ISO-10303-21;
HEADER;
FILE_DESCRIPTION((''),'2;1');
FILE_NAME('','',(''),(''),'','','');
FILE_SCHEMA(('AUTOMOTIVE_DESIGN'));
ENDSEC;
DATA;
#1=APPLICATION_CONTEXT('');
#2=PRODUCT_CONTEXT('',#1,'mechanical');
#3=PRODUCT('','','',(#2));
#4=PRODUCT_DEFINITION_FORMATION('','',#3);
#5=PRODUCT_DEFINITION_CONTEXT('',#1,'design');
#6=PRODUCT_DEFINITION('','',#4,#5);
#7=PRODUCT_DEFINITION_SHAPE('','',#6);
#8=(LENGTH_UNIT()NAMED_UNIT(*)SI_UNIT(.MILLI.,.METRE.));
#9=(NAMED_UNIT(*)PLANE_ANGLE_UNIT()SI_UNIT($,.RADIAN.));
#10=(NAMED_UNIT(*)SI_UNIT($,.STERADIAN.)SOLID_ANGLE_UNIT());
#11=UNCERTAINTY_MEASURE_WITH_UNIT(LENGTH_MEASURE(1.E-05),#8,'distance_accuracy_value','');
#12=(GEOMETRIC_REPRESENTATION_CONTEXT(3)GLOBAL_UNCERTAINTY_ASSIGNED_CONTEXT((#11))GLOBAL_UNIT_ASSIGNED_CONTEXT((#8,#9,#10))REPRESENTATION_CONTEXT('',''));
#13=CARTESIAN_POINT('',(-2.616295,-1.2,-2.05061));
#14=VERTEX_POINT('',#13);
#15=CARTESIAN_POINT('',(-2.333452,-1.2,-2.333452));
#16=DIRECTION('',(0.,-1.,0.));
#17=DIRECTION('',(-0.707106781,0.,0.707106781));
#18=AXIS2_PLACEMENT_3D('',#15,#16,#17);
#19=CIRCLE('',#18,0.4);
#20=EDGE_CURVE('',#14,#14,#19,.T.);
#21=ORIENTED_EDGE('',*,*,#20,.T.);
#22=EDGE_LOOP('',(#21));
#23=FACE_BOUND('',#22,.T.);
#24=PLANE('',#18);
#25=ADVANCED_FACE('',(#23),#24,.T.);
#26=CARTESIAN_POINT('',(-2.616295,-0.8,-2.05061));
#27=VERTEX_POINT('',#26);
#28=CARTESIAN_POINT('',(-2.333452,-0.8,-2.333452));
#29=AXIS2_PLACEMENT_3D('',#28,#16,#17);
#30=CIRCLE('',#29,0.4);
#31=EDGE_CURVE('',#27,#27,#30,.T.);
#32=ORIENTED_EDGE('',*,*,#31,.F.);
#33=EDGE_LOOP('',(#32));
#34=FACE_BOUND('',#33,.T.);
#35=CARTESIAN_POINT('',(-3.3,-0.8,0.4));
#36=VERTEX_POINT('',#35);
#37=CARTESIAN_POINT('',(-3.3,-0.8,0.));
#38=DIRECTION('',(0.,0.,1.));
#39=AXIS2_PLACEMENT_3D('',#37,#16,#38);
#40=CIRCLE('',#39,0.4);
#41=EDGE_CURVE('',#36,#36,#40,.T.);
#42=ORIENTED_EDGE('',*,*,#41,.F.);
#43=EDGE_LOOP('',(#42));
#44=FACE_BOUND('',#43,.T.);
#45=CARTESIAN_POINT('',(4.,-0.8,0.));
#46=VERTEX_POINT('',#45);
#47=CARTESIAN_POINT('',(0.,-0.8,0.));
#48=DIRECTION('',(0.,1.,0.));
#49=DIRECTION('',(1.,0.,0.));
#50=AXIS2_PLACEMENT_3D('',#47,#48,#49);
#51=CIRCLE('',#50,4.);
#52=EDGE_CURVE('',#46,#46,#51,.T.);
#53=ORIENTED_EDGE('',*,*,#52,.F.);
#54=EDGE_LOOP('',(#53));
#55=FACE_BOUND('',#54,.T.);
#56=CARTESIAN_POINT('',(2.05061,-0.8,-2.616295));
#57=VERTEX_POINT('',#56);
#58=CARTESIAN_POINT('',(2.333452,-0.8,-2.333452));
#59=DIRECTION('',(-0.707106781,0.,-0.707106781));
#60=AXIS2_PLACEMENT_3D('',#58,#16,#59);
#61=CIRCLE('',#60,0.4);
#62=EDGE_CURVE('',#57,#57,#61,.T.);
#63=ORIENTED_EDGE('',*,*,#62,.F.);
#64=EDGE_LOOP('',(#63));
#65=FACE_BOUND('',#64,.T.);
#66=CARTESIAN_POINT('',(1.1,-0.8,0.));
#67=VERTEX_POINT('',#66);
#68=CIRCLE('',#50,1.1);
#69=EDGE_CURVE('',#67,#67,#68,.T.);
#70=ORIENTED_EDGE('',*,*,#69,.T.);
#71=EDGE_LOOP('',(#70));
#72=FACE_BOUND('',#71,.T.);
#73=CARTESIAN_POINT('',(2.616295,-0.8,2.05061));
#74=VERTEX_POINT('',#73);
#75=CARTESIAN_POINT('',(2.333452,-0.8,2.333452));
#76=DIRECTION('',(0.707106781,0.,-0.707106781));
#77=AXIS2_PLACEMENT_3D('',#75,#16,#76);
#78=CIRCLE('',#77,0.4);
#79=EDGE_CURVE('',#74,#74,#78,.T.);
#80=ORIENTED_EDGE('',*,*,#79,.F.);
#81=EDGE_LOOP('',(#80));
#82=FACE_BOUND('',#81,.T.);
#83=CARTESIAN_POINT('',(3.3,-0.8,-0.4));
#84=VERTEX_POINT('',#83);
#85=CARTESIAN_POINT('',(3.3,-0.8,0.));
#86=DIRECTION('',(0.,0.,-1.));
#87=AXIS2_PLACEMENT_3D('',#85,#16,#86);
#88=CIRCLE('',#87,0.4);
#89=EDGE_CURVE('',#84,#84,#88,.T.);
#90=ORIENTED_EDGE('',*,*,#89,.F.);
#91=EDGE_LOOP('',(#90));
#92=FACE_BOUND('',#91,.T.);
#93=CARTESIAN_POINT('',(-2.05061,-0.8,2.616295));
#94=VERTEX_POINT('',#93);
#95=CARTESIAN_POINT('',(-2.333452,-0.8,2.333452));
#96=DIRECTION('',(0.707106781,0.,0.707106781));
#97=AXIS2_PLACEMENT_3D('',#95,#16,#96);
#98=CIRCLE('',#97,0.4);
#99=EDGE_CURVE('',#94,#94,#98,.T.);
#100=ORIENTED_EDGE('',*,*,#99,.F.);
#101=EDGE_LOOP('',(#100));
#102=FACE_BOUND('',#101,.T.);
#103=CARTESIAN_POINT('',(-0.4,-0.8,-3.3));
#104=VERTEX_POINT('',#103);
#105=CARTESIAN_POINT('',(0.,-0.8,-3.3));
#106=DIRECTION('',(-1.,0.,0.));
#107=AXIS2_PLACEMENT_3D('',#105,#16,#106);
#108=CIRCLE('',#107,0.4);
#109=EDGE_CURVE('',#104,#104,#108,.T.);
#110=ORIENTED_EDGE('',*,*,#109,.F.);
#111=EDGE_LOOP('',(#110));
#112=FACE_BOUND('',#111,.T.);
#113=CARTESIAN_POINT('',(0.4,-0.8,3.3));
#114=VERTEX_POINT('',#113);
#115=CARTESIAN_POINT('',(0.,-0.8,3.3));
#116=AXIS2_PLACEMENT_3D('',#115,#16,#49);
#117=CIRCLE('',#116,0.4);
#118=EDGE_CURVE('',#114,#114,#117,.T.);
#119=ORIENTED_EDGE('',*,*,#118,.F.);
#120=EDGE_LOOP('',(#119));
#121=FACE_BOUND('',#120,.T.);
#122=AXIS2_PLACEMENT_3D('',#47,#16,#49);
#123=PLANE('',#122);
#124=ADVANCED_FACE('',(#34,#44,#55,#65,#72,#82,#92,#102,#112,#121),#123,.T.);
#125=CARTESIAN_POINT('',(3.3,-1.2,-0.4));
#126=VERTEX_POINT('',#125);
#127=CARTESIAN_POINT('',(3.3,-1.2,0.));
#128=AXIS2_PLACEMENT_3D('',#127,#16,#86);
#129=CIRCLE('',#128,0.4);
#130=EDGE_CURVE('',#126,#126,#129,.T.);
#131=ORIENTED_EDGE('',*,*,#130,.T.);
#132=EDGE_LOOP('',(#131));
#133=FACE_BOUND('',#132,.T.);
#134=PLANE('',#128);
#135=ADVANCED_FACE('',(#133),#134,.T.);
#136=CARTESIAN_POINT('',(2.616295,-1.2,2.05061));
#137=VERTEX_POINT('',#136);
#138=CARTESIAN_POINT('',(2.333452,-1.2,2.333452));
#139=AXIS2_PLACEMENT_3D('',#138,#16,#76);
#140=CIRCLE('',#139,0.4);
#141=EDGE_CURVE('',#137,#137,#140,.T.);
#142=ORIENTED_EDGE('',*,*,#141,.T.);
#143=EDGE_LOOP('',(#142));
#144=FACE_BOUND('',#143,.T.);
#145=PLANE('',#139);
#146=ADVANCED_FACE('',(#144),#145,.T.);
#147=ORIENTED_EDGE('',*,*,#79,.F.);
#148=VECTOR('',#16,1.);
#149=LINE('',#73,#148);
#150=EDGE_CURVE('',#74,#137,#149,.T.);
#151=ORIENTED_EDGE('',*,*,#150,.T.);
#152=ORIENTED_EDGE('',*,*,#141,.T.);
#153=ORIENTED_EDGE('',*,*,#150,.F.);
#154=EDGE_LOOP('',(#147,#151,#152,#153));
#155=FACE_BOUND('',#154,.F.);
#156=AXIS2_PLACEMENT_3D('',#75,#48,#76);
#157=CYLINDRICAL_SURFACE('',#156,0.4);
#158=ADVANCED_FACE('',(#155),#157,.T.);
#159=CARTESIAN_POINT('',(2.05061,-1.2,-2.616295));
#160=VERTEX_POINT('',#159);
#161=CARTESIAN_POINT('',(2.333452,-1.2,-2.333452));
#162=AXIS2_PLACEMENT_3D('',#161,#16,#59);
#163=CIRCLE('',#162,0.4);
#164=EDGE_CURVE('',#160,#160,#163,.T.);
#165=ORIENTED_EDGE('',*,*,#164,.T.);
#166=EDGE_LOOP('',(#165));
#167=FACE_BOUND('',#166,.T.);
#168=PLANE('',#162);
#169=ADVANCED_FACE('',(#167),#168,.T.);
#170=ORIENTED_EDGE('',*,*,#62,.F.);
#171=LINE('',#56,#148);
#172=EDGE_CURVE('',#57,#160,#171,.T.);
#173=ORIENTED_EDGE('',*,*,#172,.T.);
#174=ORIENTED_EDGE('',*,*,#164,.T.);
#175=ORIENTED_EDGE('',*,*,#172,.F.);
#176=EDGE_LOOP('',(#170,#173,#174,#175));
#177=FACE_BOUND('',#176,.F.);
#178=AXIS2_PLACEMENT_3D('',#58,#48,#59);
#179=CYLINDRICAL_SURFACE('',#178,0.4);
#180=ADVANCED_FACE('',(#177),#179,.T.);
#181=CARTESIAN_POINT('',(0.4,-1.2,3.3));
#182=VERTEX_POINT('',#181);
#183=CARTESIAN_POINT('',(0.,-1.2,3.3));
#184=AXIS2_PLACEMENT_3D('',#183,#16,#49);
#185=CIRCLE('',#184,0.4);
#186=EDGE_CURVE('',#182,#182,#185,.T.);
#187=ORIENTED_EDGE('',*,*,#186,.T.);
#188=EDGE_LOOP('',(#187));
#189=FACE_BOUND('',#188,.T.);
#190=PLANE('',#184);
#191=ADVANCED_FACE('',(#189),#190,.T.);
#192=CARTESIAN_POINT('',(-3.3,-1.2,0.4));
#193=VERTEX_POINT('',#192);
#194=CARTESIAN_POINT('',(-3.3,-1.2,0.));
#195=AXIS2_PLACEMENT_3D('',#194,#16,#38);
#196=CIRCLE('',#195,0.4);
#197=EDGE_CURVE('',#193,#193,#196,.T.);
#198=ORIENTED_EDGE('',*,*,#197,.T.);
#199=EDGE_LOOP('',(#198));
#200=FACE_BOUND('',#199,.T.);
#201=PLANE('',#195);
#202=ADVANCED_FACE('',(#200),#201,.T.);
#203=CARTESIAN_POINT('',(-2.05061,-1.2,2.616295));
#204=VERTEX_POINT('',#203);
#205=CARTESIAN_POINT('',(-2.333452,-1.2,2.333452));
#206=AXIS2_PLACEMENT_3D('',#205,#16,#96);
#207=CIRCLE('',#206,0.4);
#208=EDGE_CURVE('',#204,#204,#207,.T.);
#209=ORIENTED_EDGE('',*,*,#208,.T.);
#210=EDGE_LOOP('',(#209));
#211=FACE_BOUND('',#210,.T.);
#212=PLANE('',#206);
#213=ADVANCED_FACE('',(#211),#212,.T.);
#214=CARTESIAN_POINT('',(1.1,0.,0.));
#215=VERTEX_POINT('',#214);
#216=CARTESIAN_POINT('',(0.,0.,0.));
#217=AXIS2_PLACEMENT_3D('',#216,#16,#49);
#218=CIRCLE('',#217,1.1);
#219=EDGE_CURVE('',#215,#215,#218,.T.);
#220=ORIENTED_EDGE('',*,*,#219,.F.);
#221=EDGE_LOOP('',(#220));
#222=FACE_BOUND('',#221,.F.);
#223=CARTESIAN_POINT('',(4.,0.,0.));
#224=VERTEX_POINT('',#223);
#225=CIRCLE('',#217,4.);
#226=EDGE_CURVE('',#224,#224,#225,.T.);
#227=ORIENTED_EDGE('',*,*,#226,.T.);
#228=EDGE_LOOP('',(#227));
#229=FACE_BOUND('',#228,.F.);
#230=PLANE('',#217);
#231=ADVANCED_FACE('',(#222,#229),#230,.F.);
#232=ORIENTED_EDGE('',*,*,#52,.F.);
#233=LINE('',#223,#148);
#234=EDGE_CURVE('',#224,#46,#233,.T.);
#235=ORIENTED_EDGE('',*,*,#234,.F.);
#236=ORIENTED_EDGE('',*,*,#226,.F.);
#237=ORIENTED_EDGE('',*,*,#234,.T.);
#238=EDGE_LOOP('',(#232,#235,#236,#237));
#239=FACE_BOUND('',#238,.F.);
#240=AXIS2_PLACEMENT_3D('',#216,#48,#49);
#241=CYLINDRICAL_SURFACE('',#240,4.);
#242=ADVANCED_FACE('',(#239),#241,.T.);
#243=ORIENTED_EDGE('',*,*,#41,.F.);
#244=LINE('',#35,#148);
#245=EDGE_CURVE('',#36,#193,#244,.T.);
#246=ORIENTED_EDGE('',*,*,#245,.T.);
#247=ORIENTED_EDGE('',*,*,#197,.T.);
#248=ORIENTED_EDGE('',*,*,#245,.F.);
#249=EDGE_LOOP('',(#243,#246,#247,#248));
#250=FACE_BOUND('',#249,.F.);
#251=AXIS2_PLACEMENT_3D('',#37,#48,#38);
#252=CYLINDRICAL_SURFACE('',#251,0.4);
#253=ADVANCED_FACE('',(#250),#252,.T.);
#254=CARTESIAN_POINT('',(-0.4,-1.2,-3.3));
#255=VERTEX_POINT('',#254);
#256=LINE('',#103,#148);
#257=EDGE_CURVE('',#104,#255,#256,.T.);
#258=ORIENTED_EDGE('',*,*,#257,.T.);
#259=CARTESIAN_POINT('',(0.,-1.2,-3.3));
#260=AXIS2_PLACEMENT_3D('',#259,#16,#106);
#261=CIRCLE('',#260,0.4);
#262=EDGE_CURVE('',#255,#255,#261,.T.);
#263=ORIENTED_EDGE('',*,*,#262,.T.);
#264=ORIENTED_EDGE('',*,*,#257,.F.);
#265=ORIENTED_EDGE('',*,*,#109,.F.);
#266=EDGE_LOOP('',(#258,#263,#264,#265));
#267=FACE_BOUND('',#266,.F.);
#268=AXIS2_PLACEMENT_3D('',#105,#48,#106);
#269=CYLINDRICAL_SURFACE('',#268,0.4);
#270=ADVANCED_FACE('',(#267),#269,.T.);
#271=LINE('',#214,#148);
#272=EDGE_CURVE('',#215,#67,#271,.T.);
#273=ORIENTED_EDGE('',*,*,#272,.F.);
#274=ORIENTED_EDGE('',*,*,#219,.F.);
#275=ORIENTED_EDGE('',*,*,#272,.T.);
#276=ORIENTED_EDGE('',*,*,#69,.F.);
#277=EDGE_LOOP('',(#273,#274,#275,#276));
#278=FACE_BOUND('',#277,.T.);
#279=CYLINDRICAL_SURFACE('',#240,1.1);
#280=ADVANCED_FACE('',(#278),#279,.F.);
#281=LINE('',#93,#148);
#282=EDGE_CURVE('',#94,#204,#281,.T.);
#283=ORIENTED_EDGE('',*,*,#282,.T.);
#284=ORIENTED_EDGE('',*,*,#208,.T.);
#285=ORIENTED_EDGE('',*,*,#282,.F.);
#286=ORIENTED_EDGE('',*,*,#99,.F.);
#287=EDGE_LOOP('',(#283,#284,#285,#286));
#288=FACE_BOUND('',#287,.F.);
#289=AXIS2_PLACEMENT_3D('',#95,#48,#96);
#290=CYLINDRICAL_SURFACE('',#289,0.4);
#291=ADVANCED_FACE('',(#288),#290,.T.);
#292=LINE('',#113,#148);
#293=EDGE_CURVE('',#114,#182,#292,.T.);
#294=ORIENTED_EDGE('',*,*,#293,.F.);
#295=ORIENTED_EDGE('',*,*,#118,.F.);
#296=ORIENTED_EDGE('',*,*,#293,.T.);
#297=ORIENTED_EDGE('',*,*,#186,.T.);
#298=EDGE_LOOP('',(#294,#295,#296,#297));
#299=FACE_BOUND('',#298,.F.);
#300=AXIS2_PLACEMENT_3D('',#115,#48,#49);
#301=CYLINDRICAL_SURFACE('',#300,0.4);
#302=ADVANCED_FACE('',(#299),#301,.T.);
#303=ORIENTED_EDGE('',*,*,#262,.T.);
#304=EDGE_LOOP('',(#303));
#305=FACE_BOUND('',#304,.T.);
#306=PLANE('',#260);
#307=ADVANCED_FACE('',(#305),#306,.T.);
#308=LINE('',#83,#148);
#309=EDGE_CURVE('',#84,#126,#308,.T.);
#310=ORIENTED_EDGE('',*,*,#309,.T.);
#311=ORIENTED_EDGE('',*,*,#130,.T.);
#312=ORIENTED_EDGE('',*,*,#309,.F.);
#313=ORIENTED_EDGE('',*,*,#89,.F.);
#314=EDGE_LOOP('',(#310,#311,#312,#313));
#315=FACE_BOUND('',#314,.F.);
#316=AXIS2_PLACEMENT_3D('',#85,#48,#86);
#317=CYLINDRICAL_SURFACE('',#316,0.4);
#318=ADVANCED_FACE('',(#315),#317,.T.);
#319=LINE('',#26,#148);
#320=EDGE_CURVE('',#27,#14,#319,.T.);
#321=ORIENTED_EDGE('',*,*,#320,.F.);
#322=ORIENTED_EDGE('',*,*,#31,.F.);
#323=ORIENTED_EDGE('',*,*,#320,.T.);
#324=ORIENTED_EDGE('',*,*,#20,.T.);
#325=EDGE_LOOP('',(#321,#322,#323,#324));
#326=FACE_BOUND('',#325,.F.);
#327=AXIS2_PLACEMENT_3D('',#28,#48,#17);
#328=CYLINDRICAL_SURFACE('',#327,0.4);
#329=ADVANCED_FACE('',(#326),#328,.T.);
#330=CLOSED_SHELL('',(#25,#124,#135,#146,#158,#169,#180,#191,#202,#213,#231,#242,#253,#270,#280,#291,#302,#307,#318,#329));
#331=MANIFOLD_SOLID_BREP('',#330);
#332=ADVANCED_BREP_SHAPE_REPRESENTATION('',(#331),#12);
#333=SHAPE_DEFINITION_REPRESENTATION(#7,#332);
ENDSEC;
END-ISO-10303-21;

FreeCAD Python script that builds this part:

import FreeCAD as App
import Part
import Sketcher
from FreeCAD import Vector
Q = App.Units.Quantity

doc = App.newDocument("Part")
body = doc.addObject("PartDesign::Body", "Body")

# Sketch on XZ plane
sketch1 = body.newObject("Sketcher::SketchObject", "Sketch")
sketch1.AttachmentSupport = (doc.getObject("XZ_Plane"), [""])
sketch1.MapMode = "FlatFace"
sketch1.addGeometry([
    Part.Circle(Vector(0, 0, 0), Vector(0, 0, 1), 4),
    Part.Circle(Vector(0, 0, 0), Vector(0, 0, 1), 1.1),
], False)
sketch1.addConstraint([
    Sketcher.Constraint("Coincident", 0, 3, -1, 1),
    Sketcher.Constraint("Coincident", 1, 3, -1, 1),
    Sketcher.Constraint("Diameter", 0, Q("8 mm")),
    Sketcher.Constraint("Diameter", 1, Q("2.2 mm")),
])
pad1 = body.newObject("PartDesign::Pad", "Pad")
pad1.Profile = sketch1
pad1.Length = 0.8

# Sketch on XZ plane
sketch2 = body.newObject("Sketcher::SketchObject", "Sketch001")
sketch2.AttachmentSupport = (doc.getObject("XZ_Plane"), [""])
sketch2.MapMode = "FlatFace"
sketch2.AttachmentOffset = App.Placement(Vector(0, 0, 0.8), App.Rotation())
sketch2.addGeometry(Part.Circle(Vector(0, 3.3, 0), Vector(0, 0, 1), 0.4), False)
sketch2.addConstraint([
    Sketcher.Constraint("PointOnObject", 0, 3, -2),
    Sketcher.Constraint("Diameter", 0, Q("0.8 mm")),
    Sketcher.Constraint("DistanceY", -1, 1, 0, 3, Q("3.3 mm")),
])
pad2 = body.newObject("PartDesign::Pad", "Pad001")
pad2.Profile = sketch2
pad2.Length = 0.4
body2 = doc.addObject("PartDesign::Body", "Body001")
doc.recompute()

body2.BaseFeature = body
doc.recompute()

body3 = doc.addObject("PartDesign::Body", "Body002")
body3.BaseFeature = body
body3.Placement = App.Placement(Vector(0, 0, 0), App.Rotation(Vector(0, -1, 0), 45))
boolean = body2.newObject("PartDesign::Boolean", "Boolean")
boolean.Type = "Fuse"
boolean.addObjects([body3])
doc.recompute()

body4 = doc.addObject("PartDesign::Body", "Body003")
body4.BaseFeature = body
body4.Placement = App.Placement(Vector(0, 0, 0), App.Rotation(Vector(0, -1, 0), 90))
boolean2 = body2.newObject("PartDesign::Boolean", "Boolean001")
boolean2.Type = "Fuse"
boolean2.addObjects([body4])
doc.recompute()

body5 = doc.addObject("PartDesign::Body", "Body004")
body5.BaseFeature = body
body5.Placement = App.Placement(Vector(0, 0, 0), App.Rotation(Vector(0, -1, 0), 135))
boolean3 = body2.newObject("PartDesign::Boolean", "Boolean002")
boolean3.Type = "Fuse"
boolean3.addObjects([body5])
doc.recompute()

body6 = doc.addObject("PartDesign::Body", "Body005")
body6.BaseFeature = body
body6.Placement = App.Placement(Vector(0, 0, 0), App.Rotation(Vector(0, -1, 0), 180))
boolean4 = body2.newObject("PartDesign::Boolean", "Boolean003")
boolean4.Type = "Fuse"
boolean4.addObjects([body6])
doc.recompute()

body7 = doc.addObject("PartDesign::Body", "Body006")
body7.BaseFeature = body
body7.Placement = App.Placement(Vector(0, 0, 0), App.Rotation(Vector(0, -1, 0), 225))
boolean5 = body2.newObject("PartDesign::Boolean", "Boolean004")
boolean5.Type = "Fuse"
boolean5.addObjects([body7])
doc.recompute()

body8 = doc.addObject("PartDesign::Body", "Body007")
body8.BaseFeature = body
body8.Placement = App.Placement(Vector(0, 0, 0), App.Rotation(Vector(0, -1, 0), 270))
boolean6 = body2.newObject("PartDesign::Boolean", "Boolean005")
boolean6.Type = "Fuse"
boolean6.addObjects([body8])
doc.recompute()

body.Placement = App.Placement(Vector(0, 0, 0), App.Rotation(Vector(0, -1, 0), 315))
boolean7 = body2.newObject("PartDesign::Boolean", "Boolean006")
boolean7.Type = "Fuse"
boolean7.addObjects([body])

doc.recompute()
